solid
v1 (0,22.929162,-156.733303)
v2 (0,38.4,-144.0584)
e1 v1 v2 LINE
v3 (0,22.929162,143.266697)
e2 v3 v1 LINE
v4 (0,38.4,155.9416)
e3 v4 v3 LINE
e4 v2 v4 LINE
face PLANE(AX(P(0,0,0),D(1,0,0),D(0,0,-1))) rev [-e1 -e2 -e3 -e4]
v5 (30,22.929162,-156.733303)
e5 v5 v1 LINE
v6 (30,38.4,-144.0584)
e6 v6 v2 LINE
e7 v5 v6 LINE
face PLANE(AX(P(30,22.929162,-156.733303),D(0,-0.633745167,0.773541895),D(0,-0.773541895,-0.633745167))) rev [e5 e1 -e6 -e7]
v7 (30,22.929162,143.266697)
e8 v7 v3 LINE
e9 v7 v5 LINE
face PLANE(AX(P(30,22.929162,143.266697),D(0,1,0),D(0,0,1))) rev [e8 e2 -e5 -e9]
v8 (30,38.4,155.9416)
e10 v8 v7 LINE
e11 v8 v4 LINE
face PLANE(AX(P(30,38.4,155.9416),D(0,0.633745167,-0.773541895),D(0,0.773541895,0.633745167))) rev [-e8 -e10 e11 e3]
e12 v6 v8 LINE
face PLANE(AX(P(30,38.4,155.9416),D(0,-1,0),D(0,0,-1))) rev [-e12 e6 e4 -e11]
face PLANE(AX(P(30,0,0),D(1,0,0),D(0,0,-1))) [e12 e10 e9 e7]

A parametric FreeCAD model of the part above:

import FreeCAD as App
import Part
import Sketcher

doc = App.newDocument("Part")
body = doc.addObject("PartDesign::Body", "Body")

sketch1 = body.newObject("Sketcher::SketchObject", "Sketch")
sketch1.AttachmentSupport = (doc.getObject("YZ_Plane"), [""])
sketch1.MapMode = "FlatFace"
sketch1.addGeometry([
    Part.LineSegment(App.Vector(38.4, 155.9416, 0), App.Vector(22.929162, 143.266697, 0)),
    Part.LineSegment(App.Vector(22.929162, 143.266697, 0), App.Vector(22.929162, -156.733303, 0)),
    Part.LineSegment(App.Vector(22.929162, -156.733303, 0), App.Vector(38.4, -144.0584, 0)),
    Part.LineSegment(App.Vector(38.4, -144.0584, 0), App.Vector(38.4, 155.9416, 0)),
], False)
sketch1.addConstraint([
    Sketcher.Constraint("Coincident", 0, 2, 1, 1),
    Sketcher.Constraint("Coincident", 1, 2, 2, 1),
    Sketcher.Constraint("Coincident", 2, 2, 3, 1),
    Sketcher.Constraint("Coincident", 3, 2, 0, 1),
    Sketcher.Constraint("Vertical", 1),
    Sketcher.Constraint("Vertical", 3),
    Sketcher.Constraint("Parallel", 0, 2),
    Sketcher.Constraint("DistanceY", 1, 2, 1, 1, 300.0),
    Sketcher.Constraint("Distance", 0, 20.0),
    Sketcher.Constraint("DistanceX", -1, 1, 2, 2, 38.4),
    Sketcher.Constraint("DistanceY", 2, 2, -1, 1, 144.0584),
    Sketcher.Constraint("DistanceX", -1, 1, 0, 2, 22.929162),
])
pad1 = body.newObject("PartDesign::Pad", "Pad")
pad1.Profile = sketch1
pad1.Length = 30

doc.recompute()
